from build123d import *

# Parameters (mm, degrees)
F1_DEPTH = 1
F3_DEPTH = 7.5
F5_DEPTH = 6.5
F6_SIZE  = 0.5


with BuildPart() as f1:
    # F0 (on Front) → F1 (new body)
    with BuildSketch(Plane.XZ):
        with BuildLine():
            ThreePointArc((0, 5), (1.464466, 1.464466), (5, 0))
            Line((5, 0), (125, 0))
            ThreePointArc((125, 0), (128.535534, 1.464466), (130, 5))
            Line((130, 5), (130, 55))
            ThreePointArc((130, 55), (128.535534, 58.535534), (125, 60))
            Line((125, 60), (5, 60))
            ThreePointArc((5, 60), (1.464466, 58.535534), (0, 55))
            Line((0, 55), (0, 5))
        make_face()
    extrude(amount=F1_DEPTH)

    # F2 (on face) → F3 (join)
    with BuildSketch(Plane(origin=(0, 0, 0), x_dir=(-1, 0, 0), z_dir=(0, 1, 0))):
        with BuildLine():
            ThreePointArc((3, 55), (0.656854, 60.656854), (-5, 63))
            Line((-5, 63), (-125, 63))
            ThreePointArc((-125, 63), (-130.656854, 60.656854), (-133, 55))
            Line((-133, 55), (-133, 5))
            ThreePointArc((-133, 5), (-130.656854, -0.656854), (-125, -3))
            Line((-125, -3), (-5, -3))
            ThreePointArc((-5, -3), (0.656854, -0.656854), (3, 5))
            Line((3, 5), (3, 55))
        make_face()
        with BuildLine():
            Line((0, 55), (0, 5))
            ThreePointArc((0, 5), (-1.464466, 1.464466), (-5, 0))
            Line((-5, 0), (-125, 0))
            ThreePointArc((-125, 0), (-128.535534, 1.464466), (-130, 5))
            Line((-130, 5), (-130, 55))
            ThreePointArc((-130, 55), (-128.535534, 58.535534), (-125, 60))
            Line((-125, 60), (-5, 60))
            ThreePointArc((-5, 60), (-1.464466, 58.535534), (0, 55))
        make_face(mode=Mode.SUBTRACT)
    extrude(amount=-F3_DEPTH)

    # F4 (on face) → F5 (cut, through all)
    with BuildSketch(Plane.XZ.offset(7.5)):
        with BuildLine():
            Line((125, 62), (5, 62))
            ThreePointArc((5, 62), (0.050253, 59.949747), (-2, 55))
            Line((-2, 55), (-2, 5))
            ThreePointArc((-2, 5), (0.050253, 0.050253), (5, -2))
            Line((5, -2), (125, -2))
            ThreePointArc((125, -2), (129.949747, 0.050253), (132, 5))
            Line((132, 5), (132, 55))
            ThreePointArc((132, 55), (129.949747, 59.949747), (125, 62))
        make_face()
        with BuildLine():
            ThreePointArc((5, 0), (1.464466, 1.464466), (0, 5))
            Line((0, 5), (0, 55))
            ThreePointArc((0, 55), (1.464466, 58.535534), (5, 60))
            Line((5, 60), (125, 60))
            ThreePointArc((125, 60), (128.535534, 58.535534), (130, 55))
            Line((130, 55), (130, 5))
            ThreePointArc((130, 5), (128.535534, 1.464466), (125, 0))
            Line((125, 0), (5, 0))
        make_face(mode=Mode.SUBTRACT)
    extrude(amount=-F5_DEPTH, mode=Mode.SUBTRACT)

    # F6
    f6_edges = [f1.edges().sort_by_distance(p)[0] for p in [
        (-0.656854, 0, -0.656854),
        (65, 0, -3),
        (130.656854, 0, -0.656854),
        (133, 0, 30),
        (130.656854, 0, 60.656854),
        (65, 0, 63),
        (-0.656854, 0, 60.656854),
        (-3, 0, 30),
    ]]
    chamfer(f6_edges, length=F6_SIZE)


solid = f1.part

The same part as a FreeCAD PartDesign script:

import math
import FreeCAD as App
import Part
import Sketcher
from FreeCAD import Vector


def edges_at(feature, points):
    """Names of the edges that pass closest to the given points."""
    edges = feature.Shape.Edges
    near = lambda p: min(range(len(edges)), key=lambda i: edges[i].distToShape(Part.Vertex(*p))[0])
    return sorted({f"Edge{near(p) + 1}" for p in points})

doc = App.newDocument("Part")
params = doc.addObject("Spreadsheet::Sheet", "Params")
for row, (alias, value) in enumerate([
    ("sketch1_radius", "5 mm"),
    ("sketch1_width", "120 mm"),
    ("sketch1_height", "50 mm"),
    ("pad1_length", "1 mm"),
    ("sketch2_radius", "8.000001 mm"),
    ("sketch2_radius2", "5 mm"),
    ("sketch2_width", "120 mm"),
    ("sketch2_height", "50 mm"),
    ("pad2_length", "7.5 mm"),
    ("sketch3_radius", "7.000002 mm"),
    ("sketch3_radius2", "5 mm"),
    ("sketch3_width", "120 mm"),
    ("sketch3_height", "50 mm"),
    ("pocket1_length", "6.5 mm"),
    ("chamfer_size", "0.5 mm"),
], start=1):
    params.set(f"A{row}", alias)
    params.set(f"B{row}", "=" + value)
    params.setAlias(f"B{row}", alias)

body = doc.addObject("PartDesign::Body", "Body")

# Sketch on XZ plane
sketch1 = doc.addObject("Sketcher::SketchObject", "Sketch")
body.addObject(sketch1)
sketch1.AttachmentSupport = (doc.XZ_Plane, [""])
sketch1.MapMode = "FlatFace"
sketch1.addGeometry([
    Part.ArcOfCircle(Part.Circle(Vector(5, 5, 0), Vector(0, 0, 1), 5), math.radians(179.999996), math.radians(270.000004)),  # 0
    Part.LineSegment(Vector(5, 0, 0), Vector(125, 0, 0)),  # 1
    Part.ArcOfCircle(Part.Circle(Vector(125, 5, 0), Vector(0, 0, 1), 5), math.radians(-90.000004), math.radians(0.000004)),  # 2
    Part.LineSegment(Vector(130, 5, 0), Vector(130, 55, 0)),  # 3
    Part.ArcOfCircle(Part.Circle(Vector(125, 55, 0), Vector(0, 0, 1), 5), math.radians(-0.000004), math.radians(90.000004)),  # 4
    Part.LineSegment(Vector(125, 60, 0), Vector(5, 60, 0)),  # 5
    Part.ArcOfCircle(Part.Circle(Vector(5, 55, 0), Vector(0, 0, 1), 5), math.radians(89.999996), math.radians(180.000004)),  # 6
    Part.LineSegment(Vector(0, 55, 0), Vector(0, 5, 0)),  # 7
], False)
sketch1.addConstraint([
    Sketcher.Constraint("Tangent", 0, 2, 1, 1),
    Sketcher.Constraint("Tangent", 1, 2, 2, 1),
    Sketcher.Constraint("Tangent", 2, 2, 3, 1),
    Sketcher.Constraint("Tangent", 3, 2, 4, 1),
    Sketcher.Constraint("Tangent", 4, 2, 5, 1),
    Sketcher.Constraint("Tangent", 5, 2, 6, 1),
    Sketcher.Constraint("Tangent", 6, 2, 7, 1),
    Sketcher.Constraint("Tangent", 7, 2, 0, 1),
    Sketcher.Constraint("Horizontal", 1),
    Sketcher.Constraint("Vertical", 3),
    Sketcher.Constraint("Horizontal", 5),
    Sketcher.Constraint("Vertical", 7),
    Sketcher.Constraint("Equal", 0, 2),
    Sketcher.Constraint("Equal", 2, 4),
    Sketcher.Constraint("Equal", 4, 6),
    Sketcher.Constraint("PointOnObject", 0, 2, -1),
    Sketcher.Constraint("PointOnObject", 6, 2, -2),
    Sketcher.Constraint("Radius", 0, 5.0),
    Sketcher.Constraint("DistanceX", 1, 1, 1, 2, 120.0),
    Sketcher.Constraint("DistanceY", 3, 1, 3, 2, 50.0),
])
sketch1.setExpression("Constraints[17]", "Params.sketch1_radius")
sketch1.setExpression("Constraints[18]", "Params.sketch1_width")
sketch1.setExpression("Constraints[19]", "Params.sketch1_height")
pad1 = doc.addObject("PartDesign::Pad", "Pad")
body.addObject(pad1)
pad1.Profile = sketch1
pad1.setExpression("Length", "Params.pad1_length")

# Sketch on XZ plane
sketch2 = doc.addObject("Sketcher::SketchObject", "Sketch001")
body.addObject(sketch2)
sketch2.AttachmentSupport = (doc.XZ_Plane, [""])
sketch2.MapMode = "FlatFace"
sketch2.addGeometry([
    Part.ArcOfCircle(Part.Circle(Vector(5.000001, 54.999999, 0), Vector(0, 0, 1), 8.000001), math.radians(90.000006), math.radians(179.999994)),  # 0
    Part.LineSegment(Vector(5, 63, 0), Vector(125, 63, 0)),  # 1
    Part.ArcOfCircle(Part.Circle(Vector(124.999999, 54.999999, 0), Vector(0, 0, 1), 8.000001), math.radians(0.000006), math.radians(89.999994)),  # 2
    Part.LineSegment(Vector(133, 55, 0), Vector(133, 5, 0)),  # 3
    Part.ArcOfCircle(Part.Circle(Vector(124.999999, 5.000001, 0), Vector(0, 0, 1), 8.000001), math.radians(-89.999994), math.radians(-0.000006)),  # 4
    Part.LineSegment(Vector(125, -3, 0), Vector(5, -3, 0)),  # 5
    Part.ArcOfCircle(Part.Circle(Vector(5.000001, 5.000001, 0), Vector(0, 0, 1), 8.000001), math.radians(-179.999994), math.radians(-90.000006)),  # 6
    Part.LineSegment(Vector(-3, 5, 0), Vector(-3, 55, 0)),  # 7
    Part.ArcOfCircle(Part.Circle(Vector(5, 55, 0), Vector(0, 0, 1), 5), math.radians(89.999996), math.radians(180.000004)),  # 8
    Part.LineSegment(Vector(0, 55, 0), Vector(0, 5, 0)),  # 9
    Part.ArcOfCircle(Part.Circle(Vector(5, 5, 0), Vector(0, 0, 1), 5), math.radians(179.999996), math.radians(270.000004)),  # 10
    Part.LineSegment(Vector(5, 0, 0), Vector(125, 0, 0)),  # 11
    Part.ArcOfCircle(Part.Circle(Vector(125, 5, 0), Vector(0, 0, 1), 5), math.radians(-90.000004), math.radians(0.000004)),  # 12
    Part.LineSegment(Vector(130, 5, 0), Vector(130, 55, 0)),  # 13
    Part.ArcOfCircle(Part.Circle(Vector(125, 55, 0), Vector(0, 0, 1), 5), math.radians(-0.000004), math.radians(90.000004)),  # 14
    Part.LineSegment(Vector(125, 60, 0), Vector(5, 60, 0)),  # 15
], False)
sketch2.addConstraint([
    Sketcher.Constraint("Tangent", 0, 1, 1, 1),
    Sketcher.Constraint("Tangent", 1, 2, 2, 2),
    Sketcher.Constraint("Tangent", 2, 1, 3, 1),
    Sketcher.Constraint("Tangent", 3, 2, 4, 2),
    Sketcher.Constraint("Tangent", 4, 1, 5, 1),
    Sketcher.Constraint("Tangent", 5, 2, 6, 2),
    Sketcher.Constraint("Tangent", 6, 1, 7, 1),
    Sketcher.Constraint("Tangent", 7, 2, 0, 2),
    Sketcher.Constraint("Tangent", 8, 2, 9, 1),
    Sketcher.Constraint("Tangent", 9, 2, 10, 1),
    Sketcher.Constraint("Tangent", 10, 2, 11, 1),
    Sketcher.Constraint("Tangent", 11, 2, 12, 1),
    Sketcher.Constraint("Tangent", 12, 2, 13, 1),
    Sketcher.Constraint("Tangent", 13, 2, 14, 1),
    Sketcher.Constraint("Tangent", 14, 2, 15, 1),
    Sketcher.Constraint("Tangent", 15, 2, 8, 1),
    Sketcher.Constraint("Horizontal", 1),
    Sketcher.Constraint("Vertical", 3),
    Sketcher.Constraint("Horizontal", 5),
    Sketcher.Constraint("Vertical", 7),
    Sketcher.Constraint("Vertical", 9),
    Sketcher.Constraint("Horizontal", 11),
    Sketcher.Constraint("Vertical", 13),
    Sketcher.Constraint("Horizontal", 15),
    Sketcher.Constraint("Coincident", 8, 3, 0, 3),
    Sketcher.Constraint("Coincident", 10, 3, 6, 3),
    Sketcher.Constraint("Coincident", 12, 3, 4, 3),
    Sketcher.Constraint("Equal", 0, 2),
    Sketcher.Constraint("Equal", 2, 4),
    Sketcher.Constraint("Equal", 4, 6),
    Sketcher.Constraint("Equal", 12, 14),
    Sketcher.Constraint("PointOnObject", 8, 2, -2),
    Sketcher.Constraint("PointOnObject", 10, 2, -1),
    Sketcher.Constraint("Radius", 0, 8.000001),
    Sketcher.Constraint("Radius", 8, 5.0),
    Sketcher.Constraint("DistanceX", 1, 1, 1, 2, 120.0),
    Sketcher.Constraint("DistanceY", 3, 2, 3, 1, 50.0),
])
sketch2.setExpression("Constraints[33]", "Params.sketch2_radius")
sketch2.setExpression("Constraints[34]", "Params.sketch2_radius2")
sketch2.setExpression("Constraints[35]", "Params.sketch2_width")
sketch2.setExpression("Constraints[36]", "Params.sketch2_height")
pad2 = doc.addObject("PartDesign::Pad", "Pad001")
body.addObject(pad2)
pad2.Profile = sketch2
pad2.setExpression("Length", "Params.pad2_length")

# Sketch on XZ plane
sketch3 = doc.addObject("Sketcher::SketchObject", "Sketch002")
body.addObject(sketch3)
sketch3.AttachmentSupport = (doc.XZ_Plane, [""])
sketch3.MapMode = "FlatFace"
sketch3.AttachmentOffset = App.Placement(Vector(0, 0, 7.5), App.Rotation())
sketch3.addGeometry([
    Part.LineSegment(Vector(125, 62, 0), Vector(5, 62, 0)),  # 0
    Part.ArcOfCircle(Part.Circle(Vector(5.000002, 54.999998, 0), Vector(0, 0, 1), 7.000002), math.radians(90.000013), math.radians(179.999987)),  # 1
    Part.LineSegment(Vector(-2, 55, 0), Vector(-2, 5, 0)),  # 2
    Part.ArcOfCircle(Part.Circle(Vector(5.000002, 5.000002, 0), Vector(0, 0, 1), 7.000002), math.radians(-179.999987), math.radians(-90.000013)),  # 3
    Part.LineSegment(Vector(5, -2, 0), Vector(125, -2, 0)),  # 4
    Part.ArcOfCircle(Part.Circle(Vector(124.999998, 5.000002, 0), Vector(0, 0, 1), 7.000002), math.radians(-89.999987), math.radians(-0.000013)),  # 5
    Part.LineSegment(Vector(132, 5, 0), Vector(132, 55, 0)),  # 6
    Part.ArcOfCircle(Part.Circle(Vector(124.999998, 54.999998, 0), Vector(0, 0, 1), 7.000002), math.radians(0.000013), math.radians(89.999987)),  # 7
    Part.LineSegment(Vector(125, 0, 0), Vector(5, 0, 0)),  # 8
    Part.ArcOfCircle(Part.Circle(Vector(5, 5, 0), Vector(0, 0, 1), 5), math.radians(179.999996), math.radians(270.000004)),  # 9
    Part.LineSegment(Vector(0, 5, 0), Vector(0, 55, 0)),  # 10
    Part.ArcOfCircle(Part.Circle(Vector(5, 55, 0), Vector(0, 0, 1), 5), math.radians(89.999996), math.radians(180.000004)),  # 11
    Part.LineSegment(Vector(5, 60, 0), Vector(125, 60, 0)),  # 12
    Part.ArcOfCircle(Part.Circle(Vector(125, 55, 0), Vector(0, 0, 1), 5), math.radians(-0.000004), math.radians(90.000004)),  # 13
    Part.LineSegment(Vector(130, 55, 0), Vector(130, 5, 0)),  # 14
    Part.ArcOfCircle(Part.Circle(Vector(125, 5, 0), Vector(0, 0, 1), 5), math.radians(-90.000004), math.radians(0.000004)),  # 15
], False)
sketch3.addConstraint([
    Sketcher.Constraint("Tangent", 0, 2, 1, 1),
    Sketcher.Constraint("Tangent", 1, 2, 2, 1),
    Sketcher.Constraint("Tangent", 2, 2, 3, 1),
    Sketcher.Constraint("Tangent", 3, 2, 4, 1),
    Sketcher.Constraint("Tangent", 4, 2, 5, 1),
    Sketcher.Constraint("Tangent", 5, 2, 6, 1),
    Sketcher.Constraint("Tangent", 6, 2, 7, 1),
    Sketcher.Constraint("Tangent", 7, 2, 0, 1),
    Sketcher.Constraint("Tangent", 8, 2, 9, 2),
    Sketcher.Constraint("Tangent", 9, 1, 10, 1),
    Sketcher.Constraint("Tangent", 10, 2, 11, 2),
    Sketcher.Constraint("Tangent", 11, 1, 12, 1),
    Sketcher.Constraint("Tangent", 12, 2, 13, 2),
    Sketcher.Constraint("Tangent", 13, 1, 14, 1),
    Sketcher.Constraint("Tangent", 14, 2, 15, 2),
    Sketcher.Constraint("Tangent", 15, 1, 8, 1),
    Sketcher.Constraint("Horizontal", 0),
    Sketcher.Constraint("Vertical", 2),
    Sketcher.Constraint("Horizontal", 4),
    Sketcher.Constraint("Vertical", 6),
    Sketcher.Constraint("Horizontal", 8),
    Sketcher.Constraint("Vertical", 10),
    Sketcher.Constraint("Horizontal", 12),
    Sketcher.Constraint("Vertical", 14),
    Sketcher.Constraint("Coincident", 9, 3, 3, 3),
    Sketcher.Constraint("Coincident", 11, 3, 1, 3),
    Sketcher.Constraint("Coincident", 13, 3, 7, 3),
    Sketcher.Constraint("Equal", 1, 3),
    Sketcher.Constraint("Equal", 3, 5),
    Sketcher.Constraint("Equal", 5, 7),
    Sketcher.Constraint("Equal", 13, 15),
    Sketcher.Constraint("PointOnObject", 8, 2, -1),
    Sketcher.Constraint("PointOnObject", 9, 1, -2),
    Sketcher.Constraint("Radius", 1, 7.000002),
    Sketcher.Constraint("Radius", 9, 5.0),
    Sketcher.Constraint("DistanceX", 0, 2, 0, 1, 120.0),
    Sketcher.Constraint("DistanceY", 2, 2, 2, 1, 50.0),
])
sketch3.setExpression("Constraints[33]", "Params.sketch3_radius")
sketch3.setExpression("Constraints[34]", "Params.sketch3_radius2")
sketch3.setExpression("Constraints[35]", "Params.sketch3_width")
sketch3.setExpression("Constraints[36]", "Params.sketch3_height")
pocket1 = doc.addObject("PartDesign::Pocket", "Pocket")
body.addObject(pocket1)
pocket1.Profile = sketch3
pocket1.setExpression("Length", "Params.pocket1_length")
doc.recompute()

chamfer = doc.addObject("PartDesign::Chamfer", "Chamfer")
body.addObject(chamfer)
chamfer.Base = (pocket1, edges_at(pocket1, [
    (-0.657, 0, -0.657),
    (65, 0, -3),
    (130.657, 0, -0.657),
    (133, 0, 30),
    (130.657, 0, 60.657),
    (65, 0, 63),
    (-0.657, 0, 60.657),
    (-3, 0, 30),
]))
chamfer.setExpression("Size", "Params.chamfer_size")

doc.recompute()
